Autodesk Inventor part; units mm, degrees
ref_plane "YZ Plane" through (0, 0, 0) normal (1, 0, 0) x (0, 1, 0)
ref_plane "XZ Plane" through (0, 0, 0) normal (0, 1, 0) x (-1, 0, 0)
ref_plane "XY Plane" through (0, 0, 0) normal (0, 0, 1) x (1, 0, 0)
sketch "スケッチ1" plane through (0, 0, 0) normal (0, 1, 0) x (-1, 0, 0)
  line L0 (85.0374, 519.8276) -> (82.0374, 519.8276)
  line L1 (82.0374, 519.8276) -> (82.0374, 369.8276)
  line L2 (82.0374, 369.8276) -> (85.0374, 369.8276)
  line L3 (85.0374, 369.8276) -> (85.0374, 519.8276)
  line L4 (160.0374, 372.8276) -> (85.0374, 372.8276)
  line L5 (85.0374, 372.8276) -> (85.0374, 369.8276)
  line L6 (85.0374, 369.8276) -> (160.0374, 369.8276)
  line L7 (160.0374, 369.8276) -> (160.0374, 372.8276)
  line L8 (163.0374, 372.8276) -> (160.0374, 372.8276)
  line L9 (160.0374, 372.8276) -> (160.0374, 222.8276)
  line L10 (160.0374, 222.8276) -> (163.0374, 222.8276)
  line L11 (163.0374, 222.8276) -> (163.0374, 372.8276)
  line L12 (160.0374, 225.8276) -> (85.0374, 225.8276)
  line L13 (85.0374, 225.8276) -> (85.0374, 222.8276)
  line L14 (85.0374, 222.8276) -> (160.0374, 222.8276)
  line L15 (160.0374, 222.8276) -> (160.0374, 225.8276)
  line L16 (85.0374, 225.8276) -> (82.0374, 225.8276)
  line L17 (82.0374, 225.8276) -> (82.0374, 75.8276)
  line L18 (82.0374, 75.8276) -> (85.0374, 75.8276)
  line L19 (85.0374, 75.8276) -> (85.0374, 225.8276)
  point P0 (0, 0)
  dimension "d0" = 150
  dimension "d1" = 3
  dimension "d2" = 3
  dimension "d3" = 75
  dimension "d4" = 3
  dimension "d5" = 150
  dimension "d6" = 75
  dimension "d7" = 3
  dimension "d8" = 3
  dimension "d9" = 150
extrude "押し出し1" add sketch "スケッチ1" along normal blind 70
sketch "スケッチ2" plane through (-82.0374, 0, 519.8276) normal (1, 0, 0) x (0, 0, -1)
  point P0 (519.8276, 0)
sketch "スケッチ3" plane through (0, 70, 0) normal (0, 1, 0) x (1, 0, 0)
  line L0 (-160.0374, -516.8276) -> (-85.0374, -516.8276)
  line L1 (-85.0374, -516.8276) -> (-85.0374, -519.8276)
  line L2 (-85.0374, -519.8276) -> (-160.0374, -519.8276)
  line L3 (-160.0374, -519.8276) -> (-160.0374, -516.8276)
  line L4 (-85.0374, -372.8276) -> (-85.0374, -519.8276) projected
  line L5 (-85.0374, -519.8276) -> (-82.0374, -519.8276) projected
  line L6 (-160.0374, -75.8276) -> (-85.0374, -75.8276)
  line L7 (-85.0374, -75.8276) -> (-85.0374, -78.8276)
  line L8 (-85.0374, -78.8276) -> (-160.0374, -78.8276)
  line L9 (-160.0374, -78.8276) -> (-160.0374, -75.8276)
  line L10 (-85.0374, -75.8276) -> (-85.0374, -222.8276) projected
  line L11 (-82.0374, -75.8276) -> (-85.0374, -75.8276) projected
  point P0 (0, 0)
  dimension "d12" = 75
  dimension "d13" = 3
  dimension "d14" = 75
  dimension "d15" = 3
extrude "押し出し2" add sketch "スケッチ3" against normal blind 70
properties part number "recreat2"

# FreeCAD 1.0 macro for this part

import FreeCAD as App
import Part
import Sketcher
from FreeCAD import Vector
Q = App.Units.Quantity

doc = App.newDocument("Part")
params = doc.addObject("Spreadsheet::Sheet", "Params")
for row, (alias, value) in enumerate([
    ("sketch1_width", "3 mm"),
    ("sketch1_height", "150 mm"),
    ("pad1_length", "70 mm"),
    ("sketch2_width", "75 mm"),
    ("sketch2_height", "3 mm"),
    ("pad2_length", "70 mm"),
], start=1):
    params.set(f"A{row}", alias)
    params.set(f"B{row}", "=" + value)
    params.setAlias(f"B{row}", alias)

body = doc.addObject("PartDesign::Body", "Body")

# Sketch on XZ plane
sketch1 = body.newObject("Sketcher::SketchObject", "Sketch")
sketch1.AttachmentSupport = (doc.getObject("XZ_Plane"), [""])
sketch1.MapMode = "FlatFace"
sketch1.addGeometry([
    Part.LineSegment(Vector(-85.0374, 372.8276, 0), Vector(-85.0374, 519.8276, 0)),  # 0
    Part.LineSegment(Vector(-85.0374, 519.8276, 0), Vector(-82.0374, 519.8276, 0)),  # 1
    Part.LineSegment(Vector(-82.0374, 519.8276, 0), Vector(-82.0374, 369.8276, 0)),  # 2
    Part.LineSegment(Vector(-82.0374, 369.8276, 0), Vector(-160.0374, 369.8276, 0)),  # 3
    Part.LineSegment(Vector(-160.0374, 369.8276, 0), Vector(-160.0374, 225.8276, 0)),  # 4
    Part.LineSegment(Vector(-160.0374, 225.8276, 0), Vector(-82.0374, 225.8276, 0)),  # 5
    Part.LineSegment(Vector(-82.0374, 225.8276, 0), Vector(-82.0374, 75.8276, 0)),  # 6
    Part.LineSegment(Vector(-82.0374, 75.8276, 0), Vector(-85.0374, 75.8276, 0)),  # 7
    Part.LineSegment(Vector(-85.0374, 75.8276, 0), Vector(-85.0374, 222.8276, 0)),  # 8
    Part.LineSegment(Vector(-85.0374, 222.8276, 0), Vector(-163.0374, 222.8276, 0)),  # 9
    Part.LineSegment(Vector(-163.0374, 222.8276, 0), Vector(-163.0374, 372.8276, 0)),  # 10
    Part.LineSegment(Vector(-163.0374, 372.8276, 0), Vector(-85.0374, 372.8276, 0)),  # 11
], False)
sketch1.addConstraint([
    Sketcher.Constraint("Coincident", 0, 2, 1, 1),
    Sketcher.Constraint("Coincident", 1, 2, 2, 1),
    Sketcher.Constraint("Coincident", 2, 2, 3, 1),
    Sketcher.Constraint("Coincident", 3, 2, 4, 1),
    Sketcher.Constraint("Coincident", 4, 2, 5, 1),
    Sketcher.Constraint("Coincident", 5, 2, 6, 1),
    Sketcher.Constraint("Coincident", 6, 2, 7, 1),
    Sketcher.Constraint("Coincident", 7, 2, 8, 1),
    Sketcher.Constraint("Coincident", 8, 2, 9, 1),
    Sketcher.Constraint("Coincident", 9, 2, 10, 1),
    Sketcher.Constraint("Coincident", 10, 2, 11, 1),
    Sketcher.Constraint("Coincident", 11, 2, 0, 1),
    Sketcher.Constraint("Vertical", 0),
    Sketcher.Constraint("Horizontal", 1),
    Sketcher.Constraint("Vertical", 2),
    Sketcher.Constraint("Horizontal", 3),
    Sketcher.Constraint("Vertical", 4),
    Sketcher.Constraint("Horizontal", 5),
    Sketcher.Constraint("Vertical", 6),
    Sketcher.Constraint("Horizontal", 7),
    Sketcher.Constraint("Vertical", 8),
    Sketcher.Constraint("Horizontal", 9),
    Sketcher.Constraint("Vertical", 10),
    Sketcher.Constraint("Horizontal", 11),
    Sketcher.Constraint("Vertical", 2, 2, 5, 2),
    Sketcher.Constraint("Vertical", 0, 2, 7, 2),
    Sketcher.Constraint("Equal", 5, 9),
    Sketcher.Constraint("Equal", 2, 6),
    Sketcher.Constraint("Equal", 0, 8),
    Sketcher.Constraint("Equal", 6, 10),
    Sketcher.Constraint("DistanceX", 1, 1, 1, 2, Q("3 mm")),
    Sketcher.Constraint("DistanceY", 2, 2, 2, 1, Q("150 mm")),
    Sketcher.Constraint("DistanceX", 3, 2, 0, 2, Q("75 mm")),
    Sketcher.Constraint("DistanceY", 8, 2, 5, 2, Q("3 mm")),
    Sketcher.Constraint("DistanceX", 0, 2, -1, 1, Q("85.0374 mm")),
    Sketcher.Constraint("DistanceY", -1, 1, 0, 2, Q("519.8276 mm")),
])
sketch1.setExpression("Constraints[30]", "Params.sketch1_width")
sketch1.setExpression("Constraints[31]", "Params.sketch1_height")
pad1 = body.newObject("PartDesign::Pad", "Pad")
pad1.Profile = sketch1
pad1.setExpression("Length", "Params.pad1_length")
pad1.Reversed = True

# Sketch on XZ plane
sketch2 = body.newObject("Sketcher::SketchObject", "Sketch001")
sketch2.AttachmentSupport = (doc.getObject("XZ_Plane"), [""])
sketch2.MapMode = "FlatFace"
sketch2.AttachmentOffset = App.Placement(Vector(0, 0, -70), App.Rotation())
sketch2.addGeometry([
    Part.LineSegment(Vector(-85.0374, 516.8276, 0), Vector(-160.0374, 516.8276, 0)),  # 0
    Part.LineSegment(Vector(-160.0374, 516.8276, 0), Vector(-160.0374, 519.8276, 0)),  # 1
    Part.LineSegment(Vector(-160.0374, 519.8276, 0), Vector(-85.0374, 519.8276, 0)),  # 2
    Part.LineSegment(Vector(-85.0374, 519.8276, 0), Vector(-85.0374, 516.8276, 0)),  # 3
    Part.LineSegment(Vector(-85.0374, 75.8276, 0), Vector(-160.0374, 75.8276, 0)),  # 4
    Part.LineSegment(Vector(-160.0374, 75.8276, 0), Vector(-160.0374, 78.8276, 0)),  # 5
    Part.LineSegment(Vector(-160.0374, 78.8276, 0), Vector(-85.0374, 78.8276, 0)),  # 6
    Part.LineSegment(Vector(-85.0374, 78.8276, 0), Vector(-85.0374, 75.8276, 0)),  # 7
], False)
sketch2.addConstraint([
    Sketcher.Constraint("Coincident", 0, 2, 1, 1),
    Sketcher.Constraint("Coincident", 1, 2, 2, 1),
    Sketcher.Constraint("Coincident", 2, 2, 3, 1),
    Sketcher.Constraint("Coincident", 3, 2, 0, 1),
    Sketcher.Constraint("Coincident", 4, 2, 5, 1),
    Sketcher.Constraint("Coincident", 5, 2, 6, 1),
    Sketcher.Constraint("Coincident", 6, 2, 7, 1),
    Sketcher.Constraint("Coincident", 7, 2, 4, 1),
    Sketcher.Constraint("Horizontal", 0),
    Sketcher.Constraint("Vertical", 1),
    Sketcher.Constraint("Horizontal", 2),
    Sketcher.Constraint("Vertical", 3),
    Sketcher.Constraint("Horizontal", 4),
    Sketcher.Constraint("Vertical", 5),
    Sketcher.Constraint("Horizontal", 6),
    Sketcher.Constraint("Vertical", 7),
    Sketcher.Constraint("Vertical", 1, 2, 4, 2),
    Sketcher.Constraint("Vertical", 3, 2, 6, 2),
    Sketcher.Constraint("Equal", 3, 5),
    Sketcher.Constraint("DistanceX", 0, 2, 0, 1, Q("75 mm")),
    Sketcher.Constraint("DistanceY", 1, 1, 1, 2, Q("3 mm")),
    Sketcher.Constraint("DistanceY", 4, 2, 0, 2, Q("441 mm")),
    Sketcher.Constraint("DistanceX", 0, 2, -1, 1, Q("160.0374 mm")),
    Sketcher.Constraint("DistanceY", -1, 1, 0, 2, Q("516.8276 mm")),
])
sketch2.setExpression("Constraints[19]", "Params.sketch2_width")
sketch2.setExpression("Constraints[20]", "Params.sketch2_height")
pad2 = body.newObject("PartDesign::Pad", "Pad001")
pad2.Profile = sketch2
pad2.setExpression("Length", "Params.pad2_length")

doc.recompute()
